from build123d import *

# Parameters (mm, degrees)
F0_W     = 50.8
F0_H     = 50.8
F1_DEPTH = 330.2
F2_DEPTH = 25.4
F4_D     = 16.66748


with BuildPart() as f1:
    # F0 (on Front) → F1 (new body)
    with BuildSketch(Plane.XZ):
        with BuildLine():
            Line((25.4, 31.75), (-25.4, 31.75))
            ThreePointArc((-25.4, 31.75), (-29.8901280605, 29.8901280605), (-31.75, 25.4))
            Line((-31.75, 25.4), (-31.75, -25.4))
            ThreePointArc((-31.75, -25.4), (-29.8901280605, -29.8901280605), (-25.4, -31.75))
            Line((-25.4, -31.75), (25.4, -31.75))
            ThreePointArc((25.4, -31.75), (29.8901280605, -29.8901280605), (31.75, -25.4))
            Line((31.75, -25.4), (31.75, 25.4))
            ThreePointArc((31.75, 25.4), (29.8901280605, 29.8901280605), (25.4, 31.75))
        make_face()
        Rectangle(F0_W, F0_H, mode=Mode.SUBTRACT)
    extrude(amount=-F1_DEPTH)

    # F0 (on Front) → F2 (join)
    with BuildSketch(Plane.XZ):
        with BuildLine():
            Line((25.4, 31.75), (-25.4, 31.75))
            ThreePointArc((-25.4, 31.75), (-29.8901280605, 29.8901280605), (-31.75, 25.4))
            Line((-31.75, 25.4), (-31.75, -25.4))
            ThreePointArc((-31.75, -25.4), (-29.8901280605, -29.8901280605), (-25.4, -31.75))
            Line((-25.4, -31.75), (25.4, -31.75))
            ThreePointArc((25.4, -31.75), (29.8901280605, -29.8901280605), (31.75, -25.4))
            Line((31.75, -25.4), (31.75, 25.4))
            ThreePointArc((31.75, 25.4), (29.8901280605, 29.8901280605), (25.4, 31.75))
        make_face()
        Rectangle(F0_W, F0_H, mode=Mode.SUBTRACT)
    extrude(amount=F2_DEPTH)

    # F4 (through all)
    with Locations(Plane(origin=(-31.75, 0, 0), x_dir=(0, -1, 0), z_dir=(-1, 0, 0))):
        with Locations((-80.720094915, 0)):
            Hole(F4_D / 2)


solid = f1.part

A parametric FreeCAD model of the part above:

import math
import FreeCAD as App
import Part
import Sketcher

V = App.Vector
Q = App.Units.Quantity


def add_polygon(sketch, points):
    """Adds a closed chain of lines whose ends are joined by coincident constraints."""
    first, n = sketch.GeometryCount, len(points)
    for a, b in zip(points, points[1:] + points[:1]):
        sketch.addGeometry(Part.LineSegment(App.Vector(*a, 0), App.Vector(*b, 0)), False)
    for i in range(n):
        sketch.addConstraint(Sketcher.Constraint("Coincident", first + i, 2, first + (i + 1) % n, 1))

doc = App.newDocument("Part")
body = doc.addObject("PartDesign::Body", "Body")

# Sketch on XZ plane
sketch1 = doc.addObject("Sketcher::SketchObject", "Sketch")
body.addObject(sketch1)
sketch1.AttachmentSupport = (doc.XZ_Plane, [""])
sketch1.MapMode = "FlatFace"
sketch1.addGeometry(Part.LineSegment(V(25, 32, 0), V(-25, 32, 0)), False)  # 0
sketch1.addGeometry(Part.ArcOfCircle(Part.Circle(V(-25, 25, 0), V(0, 0, 1), 6), math.radians(90), math.radians(180)), False)  # 1
sketch1.addGeometry(Part.LineSegment(V(-32, 25, 0), V(-32, -25, 0)), False)  # 2
sketch1.addGeometry(Part.ArcOfCircle(Part.Circle(V(-25, -25, 0), V(0, 0, 1), 6), math.radians(180), math.radians(270)), False)  # 3
sketch1.addGeometry(Part.LineSegment(V(-25, -32, 0), V(25, -32, 0)), False)  # 4
sketch1.addGeometry(Part.ArcOfCircle(Part.Circle(V(25, -25, 0), V(0, 0, 1), 6), math.radians(-90), math.radians(0)), False)  # 5
sketch1.addGeometry(Part.LineSegment(V(32, -25, 0), V(32, 25, 0)), False)  # 6
sketch1.addGeometry(Part.ArcOfCircle(Part.Circle(V(25, 25, 0), V(0, 0, 1), 6), math.radians(0), math.radians(90)), False)  # 7
add_polygon(sketch1, [(25, -25), (-25, -25), (-25, 25), (25, 25)])  # lines 8-11
sketch1.addConstraint([
    Sketcher.Constraint("Tangent", 0, 2, 1, 1),
    Sketcher.Constraint("Tangent", 1, 2, 2, 1),
    Sketcher.Constraint("Tangent", 2, 2, 3, 1),
    Sketcher.Constraint("Tangent", 3, 2, 4, 1),
    Sketcher.Constraint("Tangent", 4, 2, 5, 1),
    Sketcher.Constraint("Tangent", 5, 2, 6, 1),
    Sketcher.Constraint("Tangent", 6, 2, 7, 1),
    Sketcher.Constraint("Tangent", 7, 2, 0, 1),
    Sketcher.Constraint("Horizontal", 0),
    Sketcher.Constraint("Vertical", 2),
    Sketcher.Constraint("Horizontal", 4),
    Sketcher.Constraint("Vertical", 6),
    Sketcher.Constraint("Horizontal", 8),
    Sketcher.Constraint("Vertical", 9),
    Sketcher.Constraint("Horizontal", 10),
    Sketcher.Constraint("Vertical", 11),
    Sketcher.Constraint("Coincident", 8, 2, 3, 3),
    Sketcher.Constraint("Coincident", 9, 2, 1, 3),
    Sketcher.Constraint("Coincident", 10, 2, 7, 3),
    Sketcher.Constraint("Equal", 3, 5),
    Sketcher.Constraint("Symmetric", 1, 3, 5, 3, -1, 1),
    Sketcher.Constraint("Equal", 10, 2),
    Sketcher.Constraint("DistanceX", 0, 2, 0, 1, Q("2 in")),
    Sketcher.Constraint("Radius", 1, Q("0.25 in")),
])
pad1 = doc.addObject("PartDesign::Pad", "Pad")
body.addObject(pad1)
pad1.Profile = sketch1
pad1.Length = Q("13 in")
pad1.Reversed = True

# Sketch on XZ plane
sketch2 = doc.addObject("Sketcher::SketchObject", "Sketch001")
body.addObject(sketch2)
sketch2.AttachmentSupport = (doc.XZ_Plane, [""])
sketch2.MapMode = "FlatFace"
sketch2.addGeometry(Part.LineSegment(V(25, 32, 0), V(-25, 32, 0)), False)  # 0
sketch2.addGeometry(Part.ArcOfCircle(Part.Circle(V(-25, 25, 0), V(0, 0, 1), 6), math.radians(90), math.radians(180)), False)  # 1
sketch2.addGeometry(Part.LineSegment(V(-32, 25, 0), V(-32, -25, 0)), False)  # 2
sketch2.addGeometry(Part.ArcOfCircle(Part.Circle(V(-25, -25, 0), V(0, 0, 1), 6), math.radians(180), math.radians(270)), False)  # 3
sketch2.addGeometry(Part.LineSegment(V(-25, -32, 0), V(25, -32, 0)), False)  # 4
sketch2.addGeometry(Part.ArcOfCircle(Part.Circle(V(25, -25, 0), V(0, 0, 1), 6), math.radians(-90), math.radians(0)), False)  # 5
sketch2.addGeometry(Part.LineSegment(V(32, -25, 0), V(32, 25, 0)), False)  # 6
sketch2.addGeometry(Part.ArcOfCircle(Part.Circle(V(25, 25, 0), V(0, 0, 1), 6), math.radians(0), math.radians(90)), False)  # 7
add_polygon(sketch2, [(25, -25), (-25, -25), (-25, 25), (25, 25)])  # lines 8-11
sketch2.addConstraint([
    Sketcher.Constraint("Tangent", 0, 2, 1, 1),
    Sketcher.Constraint("Tangent", 1, 2, 2, 1),
    Sketcher.Constraint("Tangent", 2, 2, 3, 1),
    Sketcher.Constraint("Tangent", 3, 2, 4, 1),
    Sketcher.Constraint("Tangent", 4, 2, 5, 1),
    Sketcher.Constraint("Tangent", 5, 2, 6, 1),
    Sketcher.Constraint("Tangent", 6, 2, 7, 1),
    Sketcher.Constraint("Tangent", 7, 2, 0, 1),
    Sketcher.Constraint("Horizontal", 0),
    Sketcher.Constraint("Vertical", 2),
    Sketcher.Constraint("Horizontal", 4),
    Sketcher.Constraint("Vertical", 6),
    Sketcher.Constraint("Horizontal", 8),
    Sketcher.Constraint("Vertical", 9),
    Sketcher.Constraint("Horizontal", 10),
    Sketcher.Constraint("Vertical", 11),
    Sketcher.Constraint("Coincident", 8, 2, 3, 3),
    Sketcher.Constraint("Coincident", 9, 2, 1, 3),
    Sketcher.Constraint("Coincident", 10, 2, 7, 3),
    Sketcher.Constraint("Equal", 3, 5),
    Sketcher.Constraint("Symmetric", 1, 3, 5, 3, -1, 1),
    Sketcher.Constraint("Equal", 10, 2),
    Sketcher.Constraint("DistanceX", 0, 2, 0, 1, Q("2 in")),
    Sketcher.Constraint("Radius", 1, Q("0.25 in")),
])
pad2 = doc.addObject("PartDesign::Pad", "Pad001")
body.addObject(pad2)
pad2.Profile = sketch2
pad2.Length = Q("1 in")

# Sketch on YZ plane
sketch3 = doc.addObject("Sketcher::SketchObject", "Sketch002")
body.addObject(sketch3)
sketch3.AttachmentSupport = (doc.YZ_Plane, [""])
sketch3.MapMode = "FlatFace"
sketch3.AttachmentOffset = App.Placement(V(0, 0, -1.25 * 25.4), App.Rotation())
sketch3.addGeometry(Part.Circle(V(81, 0, 0), V(0, 0, 1), 8), False)
sketch3.addConstraint([
    Sketcher.Constraint("PointOnObject", 0, 3, -1),
    Sketcher.Constraint("Diameter", 0, Q("0.6562 in")),
    Sketcher.Constraint("DistanceX", -1, 1, 0, 3, Q("80.720095 mm")),
])
doc.recompute()
hole = doc.addObject("PartDesign::Hole", "Hole")
body.addObject(hole)
hole.Profile = sketch3
hole.ThreadType = "None"
hole.Diameter = Q("0.6562 in")
hole.DepthType = "ThroughAll"
hole.Reversed = True

doc.recompute()
